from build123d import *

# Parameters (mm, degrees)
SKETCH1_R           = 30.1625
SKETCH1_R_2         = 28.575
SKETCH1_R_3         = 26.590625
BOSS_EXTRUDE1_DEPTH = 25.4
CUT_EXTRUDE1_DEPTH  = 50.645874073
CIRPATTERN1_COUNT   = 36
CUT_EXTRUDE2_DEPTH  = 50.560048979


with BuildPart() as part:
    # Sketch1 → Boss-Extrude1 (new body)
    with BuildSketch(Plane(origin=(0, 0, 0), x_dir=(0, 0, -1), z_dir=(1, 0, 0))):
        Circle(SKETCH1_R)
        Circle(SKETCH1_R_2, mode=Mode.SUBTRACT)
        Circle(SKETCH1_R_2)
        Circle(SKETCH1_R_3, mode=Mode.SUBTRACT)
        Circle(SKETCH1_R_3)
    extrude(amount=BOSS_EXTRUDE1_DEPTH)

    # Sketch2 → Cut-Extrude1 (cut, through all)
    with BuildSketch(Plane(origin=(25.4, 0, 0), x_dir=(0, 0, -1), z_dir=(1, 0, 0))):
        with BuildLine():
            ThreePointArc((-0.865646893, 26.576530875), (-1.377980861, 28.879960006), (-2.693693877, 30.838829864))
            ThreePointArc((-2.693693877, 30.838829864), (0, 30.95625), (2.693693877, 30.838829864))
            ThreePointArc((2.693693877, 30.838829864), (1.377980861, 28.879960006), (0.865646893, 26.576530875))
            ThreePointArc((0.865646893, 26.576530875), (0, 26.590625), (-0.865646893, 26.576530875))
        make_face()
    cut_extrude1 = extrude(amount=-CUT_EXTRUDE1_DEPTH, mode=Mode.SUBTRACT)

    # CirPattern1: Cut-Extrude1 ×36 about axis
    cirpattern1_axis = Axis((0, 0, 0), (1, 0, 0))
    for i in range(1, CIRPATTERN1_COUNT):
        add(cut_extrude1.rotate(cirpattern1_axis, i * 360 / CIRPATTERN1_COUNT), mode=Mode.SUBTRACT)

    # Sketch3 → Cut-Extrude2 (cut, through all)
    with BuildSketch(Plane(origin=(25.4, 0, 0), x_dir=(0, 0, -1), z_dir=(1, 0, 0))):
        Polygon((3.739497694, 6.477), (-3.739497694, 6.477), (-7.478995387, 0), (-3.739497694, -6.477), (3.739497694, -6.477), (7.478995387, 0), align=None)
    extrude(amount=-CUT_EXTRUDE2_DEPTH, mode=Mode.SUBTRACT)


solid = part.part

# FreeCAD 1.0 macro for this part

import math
import FreeCAD as App
import Part
import Sketcher
from FreeCAD import Vector
Q = App.Units.Quantity


def add_polygon(sketch, points):
    """Adds a closed chain of lines whose ends are joined by coincident constraints."""
    first, n = sketch.GeometryCount, len(points)
    for a, b in zip(points, points[1:] + points[:1]):
        sketch.addGeometry(Part.LineSegment(App.Vector(*a, 0), App.Vector(*b, 0)), False)
    for i in range(n):
        sketch.addConstraint(Sketcher.Constraint("Coincident", first + i, 2, first + (i + 1) % n, 1))

doc = App.newDocument("Part")
body = doc.addObject("PartDesign::Body", "Body")

# Sketch on YZ plane
sketch1 = doc.addObject("Sketcher::SketchObject", "Sketch")
body.addObject(sketch1)
sketch1.AttachmentSupport = (doc.YZ_Plane, [""])
sketch1.MapMode = "FlatFace"
sketch1.addGeometry(Part.Circle(Vector(0, 0, 0), Vector(0, 0, 1), 30.1625), False)
sketch1.addConstraint(Sketcher.Constraint("Coincident", 0, 3, -1, 1))
sketch1.addConstraint(Sketcher.Constraint("Diameter", 0, Q("2.375 in")))
pad1 = doc.addObject("PartDesign::Pad", "Pad")
body.addObject(pad1)
pad1.Profile = sketch1
pad1.Length = Q("1 in")

# Sketch on YZ plane
sketch2 = doc.addObject("Sketcher::SketchObject", "Sketch001")
body.addObject(sketch2)
sketch2.AttachmentSupport = (doc.YZ_Plane, [""])
sketch2.MapMode = "FlatFace"
sketch2.AttachmentOffset = App.Placement(Vector(0, 0, 1 * 25.4), App.Rotation())
sketch2.addGeometry(Part.ArcOfCircle(Part.Circle(Vector(26.369161, 7.232195, 0), Vector(0, 0, 1), 6.369924), math.radians(-88.13443), math.radians(-45.437789)), False)
sketch2.addGeometry(Part.ArcOfCircle(Part.Circle(Vector(0, 0, 0), Vector(0, 0, 1), 26.590625), math.radians(-1.86557), math.radians(1.86557)), False)
sketch2.addGeometry(Part.ArcOfCircle(Part.Circle(Vector(26.369161, -7.232195, 0), Vector(0, 0, 1), 6.369924), math.radians(45.437789), math.radians(88.13443)), False)
sketch2.addGeometry(Part.ArcOfCircle(Part.Circle(Vector(0, 0, 0), Vector(0, 0, 1), 30.95625), math.radians(-4.991972), math.radians(4.991972)), False)
sketch2.addConstraint(Sketcher.Constraint("Coincident", 0, 1, 1, 2))
sketch2.addConstraint(Sketcher.Constraint("Coincident", 1, 1, 2, 2))
sketch2.addConstraint(Sketcher.Constraint("Coincident", 2, 1, 3, 1))
sketch2.addConstraint(Sketcher.Constraint("Coincident", 3, 2, 0, 2))
sketch2.addConstraint(Sketcher.Constraint("Coincident", 1, 3, -1, 1))
sketch2.addConstraint(Sketcher.Constraint("Coincident", 3, 3, -1, 1))
sketch2.addConstraint(Sketcher.Constraint("Equal", 0, 2))
sketch2.addConstraint(Sketcher.Constraint("Symmetric", 0, 3, 2, 3, -1))
sketch2.addConstraint(Sketcher.Constraint("Radius", 1, Q("1.046875 in")))
sketch2.addConstraint(Sketcher.Constraint("Radius", 3, Q("1.21875 in")))
sketch2.addConstraint(Sketcher.Constraint("Radius", 0, 6.369924))
sketch2.addConstraint(Sketcher.Constraint("DistanceX", 1, 1, 2, 1, 4.262299))
sketch2.addConstraint(Sketcher.Constraint("DistanceY", 2, 3, 2, 1, 4.538501))
pocket1 = doc.addObject("PartDesign::Pocket", "Pocket")
body.addObject(pocket1)
pocket1.Profile = sketch2
pocket1.Type = "ThroughAll"
doc.recompute()

polarpattern = doc.addObject("PartDesign::PolarPattern", "PolarPattern")
body.addObject(polarpattern)
polarpattern.Originals = [pocket1]
polarpattern.Axis = (doc.X_Axis, [""])
polarpattern.Angle = 360
polarpattern.Occurrences = 36
body.Tip = polarpattern

# Sketch on YZ plane
sketch3 = doc.addObject("Sketcher::SketchObject", "Sketch002")
body.addObject(sketch3)
sketch3.AttachmentSupport = (doc.YZ_Plane, [""])
sketch3.MapMode = "FlatFace"
sketch3.AttachmentOffset = App.Placement(Vector(0, 0, 1 * 25.4), App.Rotation())
add_polygon(sketch3, [(6.477, -3.739498), (6.477, 3.739498), (0, 7.478995), (-6.477, 3.739498), (-6.477, -3.739498), (0, -7.478995)])  # lines 0-5
sketch3.addConstraint(Sketcher.Constraint("Vertical", 0))
sketch3.addConstraint(Sketcher.Constraint("Vertical", 3))
sketch3.addConstraint(Sketcher.Constraint("Symmetric", 0, 2, 3, 2, -1, 1))
sketch3.addConstraint(Sketcher.Constraint("Symmetric", 1, 2, 4, 2, -1, 1))
sketch3.addConstraint(Sketcher.Constraint("PointOnObject", 1, 2, -2))
sketch3.addConstraint(Sketcher.Constraint("Parallel", 2, 5))
sketch3.addConstraint(Sketcher.Constraint("Horizontal", 0, 2, 2, 2))
sketch3.addConstraint(Sketcher.Constraint("Angle", 1, Q("150 deg")))
sketch3.addConstraint(Sketcher.Constraint("DistanceX", 2, 2, 0, 2, Q("0.51 in")))
sketch3.addConstraint(Sketcher.Constraint("DistanceY", 0, 1, 0, 2, 7.478995))
pocket2 = doc.addObject("PartDesign::Pocket", "Pocket001")
body.addObject(pocket2)
pocket2.Profile = sketch3
pocket2.Type = "ThroughAll"

doc.recompute()
